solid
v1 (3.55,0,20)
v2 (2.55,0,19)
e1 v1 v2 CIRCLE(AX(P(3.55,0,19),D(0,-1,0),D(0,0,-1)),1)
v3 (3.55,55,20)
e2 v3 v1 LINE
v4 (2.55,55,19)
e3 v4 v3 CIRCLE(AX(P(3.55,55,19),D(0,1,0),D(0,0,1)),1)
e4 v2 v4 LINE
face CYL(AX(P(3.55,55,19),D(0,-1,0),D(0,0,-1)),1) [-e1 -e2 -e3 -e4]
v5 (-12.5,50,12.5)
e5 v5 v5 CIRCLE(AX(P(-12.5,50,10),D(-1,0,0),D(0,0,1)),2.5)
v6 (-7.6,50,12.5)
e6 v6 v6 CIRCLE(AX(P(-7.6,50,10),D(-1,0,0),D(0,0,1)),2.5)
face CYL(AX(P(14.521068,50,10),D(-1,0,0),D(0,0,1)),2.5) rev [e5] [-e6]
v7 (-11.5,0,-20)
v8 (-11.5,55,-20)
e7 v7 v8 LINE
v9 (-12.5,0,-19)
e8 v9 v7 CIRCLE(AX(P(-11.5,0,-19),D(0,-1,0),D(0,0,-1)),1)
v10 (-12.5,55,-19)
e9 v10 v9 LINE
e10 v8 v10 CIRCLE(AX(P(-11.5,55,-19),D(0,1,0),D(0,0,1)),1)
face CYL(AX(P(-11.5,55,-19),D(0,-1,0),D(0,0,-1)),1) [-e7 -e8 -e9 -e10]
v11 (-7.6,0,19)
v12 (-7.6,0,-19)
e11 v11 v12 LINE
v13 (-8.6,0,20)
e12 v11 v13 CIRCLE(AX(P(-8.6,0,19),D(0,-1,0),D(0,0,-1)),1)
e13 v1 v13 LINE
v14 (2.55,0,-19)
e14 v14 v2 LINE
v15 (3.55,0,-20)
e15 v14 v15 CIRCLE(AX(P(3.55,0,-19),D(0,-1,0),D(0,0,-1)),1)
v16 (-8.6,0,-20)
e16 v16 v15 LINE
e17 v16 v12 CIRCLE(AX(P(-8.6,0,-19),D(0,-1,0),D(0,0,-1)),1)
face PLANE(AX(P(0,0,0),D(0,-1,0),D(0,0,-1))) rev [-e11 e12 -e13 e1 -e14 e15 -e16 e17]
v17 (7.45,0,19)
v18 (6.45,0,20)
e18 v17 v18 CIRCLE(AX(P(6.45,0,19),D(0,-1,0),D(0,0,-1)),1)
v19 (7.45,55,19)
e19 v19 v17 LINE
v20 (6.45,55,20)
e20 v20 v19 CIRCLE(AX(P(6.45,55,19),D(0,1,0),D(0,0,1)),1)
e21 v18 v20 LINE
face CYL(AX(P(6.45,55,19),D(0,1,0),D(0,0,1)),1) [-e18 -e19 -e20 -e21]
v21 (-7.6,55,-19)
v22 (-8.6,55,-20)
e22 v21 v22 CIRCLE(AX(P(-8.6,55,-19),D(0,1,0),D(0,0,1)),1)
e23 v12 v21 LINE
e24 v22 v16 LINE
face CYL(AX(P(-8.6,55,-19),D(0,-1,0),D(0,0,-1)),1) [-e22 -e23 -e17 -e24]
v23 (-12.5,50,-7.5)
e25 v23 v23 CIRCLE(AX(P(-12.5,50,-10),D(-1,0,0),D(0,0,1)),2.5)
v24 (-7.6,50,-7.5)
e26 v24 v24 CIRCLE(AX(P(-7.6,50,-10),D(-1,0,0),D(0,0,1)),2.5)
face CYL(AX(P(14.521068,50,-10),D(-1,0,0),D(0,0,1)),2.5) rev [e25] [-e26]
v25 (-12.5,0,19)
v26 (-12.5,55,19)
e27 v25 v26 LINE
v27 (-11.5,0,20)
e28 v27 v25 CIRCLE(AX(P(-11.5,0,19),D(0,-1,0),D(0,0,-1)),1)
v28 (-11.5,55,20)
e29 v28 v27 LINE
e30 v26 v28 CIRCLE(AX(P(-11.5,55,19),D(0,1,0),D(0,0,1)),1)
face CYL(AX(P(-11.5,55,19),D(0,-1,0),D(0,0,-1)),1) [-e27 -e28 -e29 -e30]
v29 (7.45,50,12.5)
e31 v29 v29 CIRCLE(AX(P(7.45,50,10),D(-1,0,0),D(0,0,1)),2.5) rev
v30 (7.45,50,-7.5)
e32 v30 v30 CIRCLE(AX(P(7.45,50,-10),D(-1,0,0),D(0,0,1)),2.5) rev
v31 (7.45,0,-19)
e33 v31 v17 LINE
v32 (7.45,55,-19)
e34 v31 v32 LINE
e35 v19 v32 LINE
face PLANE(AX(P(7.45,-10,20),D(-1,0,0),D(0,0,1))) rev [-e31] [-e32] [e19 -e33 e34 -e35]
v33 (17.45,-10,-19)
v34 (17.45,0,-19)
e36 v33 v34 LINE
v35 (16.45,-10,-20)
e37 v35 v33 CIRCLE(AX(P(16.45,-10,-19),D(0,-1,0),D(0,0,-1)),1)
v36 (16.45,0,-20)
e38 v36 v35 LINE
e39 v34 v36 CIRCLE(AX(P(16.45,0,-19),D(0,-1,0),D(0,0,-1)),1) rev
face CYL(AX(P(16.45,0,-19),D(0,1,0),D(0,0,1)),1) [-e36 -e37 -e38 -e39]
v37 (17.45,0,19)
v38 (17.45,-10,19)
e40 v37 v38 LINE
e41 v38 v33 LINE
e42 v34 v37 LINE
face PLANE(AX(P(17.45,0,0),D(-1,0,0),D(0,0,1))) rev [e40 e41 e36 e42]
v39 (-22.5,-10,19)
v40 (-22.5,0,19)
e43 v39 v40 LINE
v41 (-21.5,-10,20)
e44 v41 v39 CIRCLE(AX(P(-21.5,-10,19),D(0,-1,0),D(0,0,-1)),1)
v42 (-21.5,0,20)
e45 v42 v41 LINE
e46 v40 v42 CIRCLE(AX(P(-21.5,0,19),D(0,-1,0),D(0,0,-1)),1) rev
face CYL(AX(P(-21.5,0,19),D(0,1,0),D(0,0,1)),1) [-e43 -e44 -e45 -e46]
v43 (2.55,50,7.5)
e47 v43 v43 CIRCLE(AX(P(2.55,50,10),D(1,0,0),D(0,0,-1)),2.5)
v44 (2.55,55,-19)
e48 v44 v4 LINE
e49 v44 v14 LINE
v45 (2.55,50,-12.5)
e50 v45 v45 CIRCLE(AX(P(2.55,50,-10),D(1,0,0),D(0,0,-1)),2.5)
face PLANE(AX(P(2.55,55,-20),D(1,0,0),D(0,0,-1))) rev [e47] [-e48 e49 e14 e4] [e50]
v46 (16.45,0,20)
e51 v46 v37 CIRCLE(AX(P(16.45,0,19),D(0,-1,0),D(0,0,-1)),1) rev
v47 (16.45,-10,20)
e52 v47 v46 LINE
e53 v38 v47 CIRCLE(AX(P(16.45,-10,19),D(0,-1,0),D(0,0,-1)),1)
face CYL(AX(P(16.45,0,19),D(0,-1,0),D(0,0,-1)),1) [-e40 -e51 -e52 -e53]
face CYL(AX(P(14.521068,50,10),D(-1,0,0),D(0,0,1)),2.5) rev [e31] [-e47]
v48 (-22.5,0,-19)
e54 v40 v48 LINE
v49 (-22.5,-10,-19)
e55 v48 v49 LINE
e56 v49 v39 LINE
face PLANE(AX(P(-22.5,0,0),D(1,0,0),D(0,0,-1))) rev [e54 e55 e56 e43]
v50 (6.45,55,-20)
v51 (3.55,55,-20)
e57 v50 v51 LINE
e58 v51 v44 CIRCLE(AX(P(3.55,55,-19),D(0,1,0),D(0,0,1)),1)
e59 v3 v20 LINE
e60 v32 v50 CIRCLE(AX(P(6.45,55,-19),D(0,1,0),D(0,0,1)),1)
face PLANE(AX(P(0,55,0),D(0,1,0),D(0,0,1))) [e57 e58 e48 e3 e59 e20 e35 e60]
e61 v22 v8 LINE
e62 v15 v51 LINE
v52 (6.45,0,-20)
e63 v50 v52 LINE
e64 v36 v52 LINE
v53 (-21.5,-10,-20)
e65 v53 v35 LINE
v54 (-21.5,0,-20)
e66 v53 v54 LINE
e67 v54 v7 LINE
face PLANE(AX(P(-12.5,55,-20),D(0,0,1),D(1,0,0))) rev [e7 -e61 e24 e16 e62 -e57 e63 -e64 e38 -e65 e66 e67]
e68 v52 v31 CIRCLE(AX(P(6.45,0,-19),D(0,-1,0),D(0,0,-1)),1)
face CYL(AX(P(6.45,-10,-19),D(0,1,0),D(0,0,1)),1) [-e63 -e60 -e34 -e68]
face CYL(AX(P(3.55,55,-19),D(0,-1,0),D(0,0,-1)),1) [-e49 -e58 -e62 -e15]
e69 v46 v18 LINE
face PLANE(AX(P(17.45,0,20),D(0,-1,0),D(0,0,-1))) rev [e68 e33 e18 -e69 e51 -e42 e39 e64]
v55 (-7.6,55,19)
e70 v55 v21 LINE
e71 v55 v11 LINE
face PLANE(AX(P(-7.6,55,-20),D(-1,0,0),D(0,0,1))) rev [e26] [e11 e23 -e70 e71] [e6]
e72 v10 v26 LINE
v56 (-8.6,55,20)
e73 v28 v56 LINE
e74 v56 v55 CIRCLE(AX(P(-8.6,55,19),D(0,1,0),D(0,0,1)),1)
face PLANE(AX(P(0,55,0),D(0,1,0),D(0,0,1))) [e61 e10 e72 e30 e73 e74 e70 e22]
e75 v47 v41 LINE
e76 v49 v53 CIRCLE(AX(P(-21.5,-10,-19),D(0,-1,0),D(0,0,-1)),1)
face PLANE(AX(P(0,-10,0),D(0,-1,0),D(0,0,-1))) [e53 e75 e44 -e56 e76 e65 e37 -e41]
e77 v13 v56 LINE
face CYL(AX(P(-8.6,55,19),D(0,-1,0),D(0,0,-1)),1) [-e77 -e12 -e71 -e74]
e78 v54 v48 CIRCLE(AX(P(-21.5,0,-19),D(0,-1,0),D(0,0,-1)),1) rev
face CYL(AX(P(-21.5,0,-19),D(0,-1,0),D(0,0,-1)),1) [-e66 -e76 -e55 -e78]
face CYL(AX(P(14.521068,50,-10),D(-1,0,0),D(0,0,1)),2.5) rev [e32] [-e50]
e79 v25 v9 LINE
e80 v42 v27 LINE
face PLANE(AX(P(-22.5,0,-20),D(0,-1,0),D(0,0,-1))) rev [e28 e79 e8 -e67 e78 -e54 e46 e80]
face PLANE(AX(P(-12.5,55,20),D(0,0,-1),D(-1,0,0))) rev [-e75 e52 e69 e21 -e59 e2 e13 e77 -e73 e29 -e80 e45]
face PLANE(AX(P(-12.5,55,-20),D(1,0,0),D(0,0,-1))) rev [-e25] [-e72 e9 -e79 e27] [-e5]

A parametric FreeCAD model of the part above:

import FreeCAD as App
import Part
import Sketcher

V = App.Vector


def edges_at(feature, points):
    """Names of the edges that pass closest to the given points."""
    edges = feature.Shape.Edges
    near = lambda p: min(range(len(edges)), key=lambda i: edges[i].distToShape(Part.Vertex(*p))[0])
    return sorted({f"Edge{near(p) + 1}" for p in points})

doc = App.newDocument("Part")
body = doc.addObject("PartDesign::Body", "Body")

# Sketch on XZ plane
sketch1 = body.newObject("Sketcher::SketchObject", "Sketch")
sketch1.AttachmentSupport = (doc.getObject("XZ_Plane"), [""])
sketch1.MapMode = "FlatFace"
sketch1.addGeometry([
    Part.LineSegment(V(-12.5, -20, 0), V(-12.5, 20, 0)),
    Part.LineSegment(V(-12.5, 20, 0), V(-7.6, 20, 0)),
    Part.LineSegment(V(-7.6, 20, 0), V(-7.6, -20, 0)),
    Part.LineSegment(V(-7.6, -20, 0), V(-12.5, -20, 0)),
], False)
sketch1.addConstraint([
    Sketcher.Constraint("Coincident", 0, 2, 1, 1),
    Sketcher.Constraint("Coincident", 1, 2, 2, 1),
    Sketcher.Constraint("Coincident", 2, 2, 3, 1),
    Sketcher.Constraint("Coincident", 3, 2, 0, 1),
    Sketcher.Constraint("Vertical", 0),
    Sketcher.Constraint("Horizontal", 1),
    Sketcher.Constraint("Vertical", 2),
    Sketcher.Constraint("Horizontal", 3),
    Sketcher.Constraint("DistanceY", 0, 1, 0, 2, 40.0),
    Sketcher.Constraint("DistanceX", 1, 1, 1, 2, 4.9),
    Sketcher.Constraint("DistanceY", -1, 1, 0, 2, 20.0),
    Sketcher.Constraint("DistanceX", 0, 2, -1, 1, 12.5),
])
pad1 = body.newObject("PartDesign::Pad", "Pad")
pad1.Profile = sketch1
pad1.Length = 55
pad1.Reversed = True
body2 = doc.addObject("PartDesign::Body", "Body001")

# Sketch on XZ plane
sketch2 = body2.newObject("Sketcher::SketchObject", "Sketch001")
sketch2.AttachmentSupport = (doc.getObject("XZ_Plane001"), [""])
sketch2.MapMode = "FlatFace"
sketch2.addGeometry([
    Part.LineSegment(V(2.5, -20, 0), V(2.5, 20, 0)),
    Part.LineSegment(V(2.5, 20, 0), V(7.5, 20, 0)),
    Part.LineSegment(V(7.5, 20, 0), V(7.5, -20, 0)),
    Part.LineSegment(V(7.5, -20, 0), V(2.5, -20, 0)),
], False)
sketch2.addConstraint([
    Sketcher.Constraint("Coincident", 0, 2, 1, 1),
    Sketcher.Constraint("Coincident", 1, 2, 2, 1),
    Sketcher.Constraint("Coincident", 2, 2, 3, 1),
    Sketcher.Constraint("Coincident", 3, 2, 0, 1),
    Sketcher.Constraint("Vertical", 0),
    Sketcher.Constraint("Horizontal", 1),
    Sketcher.Constraint("Vertical", 2),
    Sketcher.Constraint("Horizontal", 3),
    Sketcher.Constraint("DistanceY", 0, 1, 0, 2, 40.0),
    Sketcher.Constraint("DistanceX", 1, 1, 1, 2, 4.9),
    Sketcher.Constraint("DistanceY", -1, 1, 0, 2, 20.0),
    Sketcher.Constraint("DistanceX", -1, 1, 0, 2, 2.55),
])
pad2 = body2.newObject("PartDesign::Pad", "Pad001")
pad2.Profile = sketch2
pad2.Length = 55
pad2.Reversed = True
body.AllowCompound = True
doc.recompute()

boolean = body.newObject("PartDesign::Boolean", "Boolean")
boolean.Type = "Fuse"
boolean.addObjects([body2])

# Sketch on XZ plane
sketch3 = body.newObject("Sketcher::SketchObject", "Sketch002")
sketch3.AttachmentSupport = (doc.getObject("XZ_Plane"), [""])
sketch3.MapMode = "FlatFace"
sketch3.addGeometry([
    Part.LineSegment(V(-12, 20, 0), V(-12, -20, 0)),
    Part.LineSegment(V(-12, -20, 0), V(7, -20, 0)),
    Part.LineSegment(V(7, -20, 0), V(7, 20, 0)),
    Part.LineSegment(V(7, 20, 0), V(-12, 20, 0)),
], False)
sketch3.addConstraint([
    Sketcher.Constraint("Coincident", 0, 2, 1, 1),
    Sketcher.Constraint("Coincident", 1, 2, 2, 1),
    Sketcher.Constraint("Coincident", 2, 2, 3, 1),
    Sketcher.Constraint("Coincident", 3, 2, 0, 1),
    Sketcher.Constraint("Vertical", 0),
    Sketcher.Constraint("Horizontal", 1),
    Sketcher.Constraint("Vertical", 2),
    Sketcher.Constraint("Horizontal", 3),
    Sketcher.Constraint("DistanceY", 0, 2, 0, 1, 40.0),
    Sketcher.Constraint("DistanceY", 0, 2, -1, 1, 20.0),
    Sketcher.Constraint("DistanceX", 1, 1, 1, 2, 19.95),
    Sketcher.Constraint("DistanceX", 0, 2, -1, 1, 12.5),
])
pad3 = body.newObject("PartDesign::Pad", "Pad002")
pad3.Profile = sketch3
pad3.Length = 10

# Sketch on YZ plane
sketch4 = body.newObject("Sketcher::SketchObject", "Sketch003")
sketch4.AttachmentSupport = (doc.getObject("YZ_Plane"), [""])
sketch4.MapMode = "FlatFace"
sketch4.AttachmentOffset = App.Placement(V(0, 0, -12.5), App.Rotation())
sketch4.addGeometry([
    Part.Circle(V(50, -10, 0), V(0, 0, 1), 2.5),
    Part.Circle(V(50, 10, 0), V(0, 0, 1), 2.5),
], False)
sketch4.addConstraint([
    Sketcher.Constraint("Equal", 0, 1),
    Sketcher.Constraint("Symmetric", 0, 3, 1, 3, -1),
    Sketcher.Constraint("Diameter", 0, 5.0),
    Sketcher.Constraint("DistanceX", -1, 1, 0, 3, 50.0),
    Sketcher.Constraint("DistanceY", 0, 3, -1, 1, 10.0),
])
pocket1 = body.newObject("PartDesign::Pocket", "Pocket")
pocket1.Profile = sketch4
pocket1.Length = 19.95
pocket1.Reversed = True

# Sketch on YZ plane
sketch5 = body.newObject("Sketcher::SketchObject", "Sketch004")
sketch5.AttachmentSupport = (doc.getObject("YZ_Plane"), [""])
sketch5.MapMode = "FlatFace"
sketch5.AttachmentOffset = App.Placement(V(0, 0, -12.5), App.Rotation())
sketch5.addGeometry([
    Part.LineSegment(V(0, -20, 0), V(-10, -20, 0)),
    Part.LineSegment(V(-10, -20, 0), V(-10, 20, 0)),
    Part.LineSegment(V(-10, 20, 0), V(0, 20, 0)),
    Part.LineSegment(V(0, 20, 0), V(0, -20, 0)),
], False)
sketch5.addConstraint([
    Sketcher.Constraint("Coincident", 0, 2, 1, 1),
    Sketcher.Constraint("Coincident", 1, 2, 2, 1),
    Sketcher.Constraint("Coincident", 2, 2, 3, 1),
    Sketcher.Constraint("Coincident", 3, 2, 0, 1),
    Sketcher.Constraint("Horizontal", 0),
    Sketcher.Constraint("Vertical", 1),
    Sketcher.Constraint("Horizontal", 2),
    Sketcher.Constraint("Vertical", 3),
    Sketcher.Constraint("Symmetric", 2, 2, 3, 2, -1, 1),
    Sketcher.Constraint("DistanceX", 0, 2, 0, 1, 10.0),
    Sketcher.Constraint("DistanceY", 1, 1, 1, 2, 40.0),
])
pad4 = body.newObject("PartDesign::Pad", "Pad003")
pad4.Profile = sketch5
pad4.Length = 10
pad4.Reversed = True

# Sketch on YZ plane
sketch6 = body.newObject("Sketcher::SketchObject", "Sketch005")
sketch6.AttachmentSupport = (doc.getObject("YZ_Plane"), [""])
sketch6.MapMode = "FlatFace"
sketch6.AttachmentOffset = App.Placement(V(0, 0, 7.45), App.Rotation())
sketch6.addGeometry([
    Part.LineSegment(V(0, 20, 0), V(-10, 20, 0)),
    Part.LineSegment(V(-10, 20, 0), V(-10, -20, 0)),
    Part.LineSegment(V(-10, -20, 0), V(0, -20, 0)),
    Part.LineSegment(V(0, -20, 0), V(0, 20, 0)),
], False)
sketch6.addConstraint([
    Sketcher.Constraint("Coincident", 0, 2, 1, 1),
    Sketcher.Constraint("Coincident", 1, 2, 2, 1),
    Sketcher.Constraint("Coincident", 2, 2, 3, 1),
    Sketcher.Constraint("Coincident", 3, 2, 0, 1),
    Sketcher.Constraint("Horizontal", 0),
    Sketcher.Constraint("Vertical", 1),
    Sketcher.Constraint("Horizontal", 2),
    Sketcher.Constraint("Vertical", 3),
    Sketcher.Constraint("Symmetric", 2, 2, 3, 2, -1, 1),
    Sketcher.Constraint("DistanceX", 0, 2, 0, 1, 10.0),
    Sketcher.Constraint("DistanceY", 1, 2, 1, 1, 40.0),
])
pad5 = body.newObject("PartDesign::Pad", "Pad004")
pad5.Profile = sketch6
pad5.Length = 10
doc.recompute()

fillet = body.newObject("PartDesign::Fillet", "Fillet")
fillet.Base = (pad5, edges_at(pad5, [
    (2.55, 27.5, -20),
    (2.55, 27.5, 20),
    (-22.5, -5, -20),
    (-22.5, -5, 20),
    (-12.5, 27.5, -20),
    (7.45, 27.5, -20),
    (7.45, 27.5, 20),
    (-7.6, 27.5, -20),
    (-7.6, 27.5, 20),
    (17.45, -5, 20),
    (-12.5, 27.5, 20),
    (17.45, -5, -20),
]))
fillet.Radius = 1

doc.recompute()
